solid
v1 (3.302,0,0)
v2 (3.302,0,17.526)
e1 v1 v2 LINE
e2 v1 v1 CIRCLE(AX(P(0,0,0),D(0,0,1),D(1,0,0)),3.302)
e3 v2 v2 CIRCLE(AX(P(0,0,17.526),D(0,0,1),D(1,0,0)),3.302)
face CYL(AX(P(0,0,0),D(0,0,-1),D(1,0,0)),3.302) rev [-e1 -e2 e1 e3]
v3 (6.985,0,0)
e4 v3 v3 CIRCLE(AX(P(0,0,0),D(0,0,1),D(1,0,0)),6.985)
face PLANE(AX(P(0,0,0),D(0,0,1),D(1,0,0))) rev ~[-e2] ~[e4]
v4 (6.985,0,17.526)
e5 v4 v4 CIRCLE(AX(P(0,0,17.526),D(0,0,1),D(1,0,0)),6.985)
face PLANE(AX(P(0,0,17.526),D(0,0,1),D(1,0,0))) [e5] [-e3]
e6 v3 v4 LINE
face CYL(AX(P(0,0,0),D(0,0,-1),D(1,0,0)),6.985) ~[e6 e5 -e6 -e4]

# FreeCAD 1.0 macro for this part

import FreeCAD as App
import Part
import Sketcher
from FreeCAD import Vector
Q = App.Units.Quantity

doc = App.newDocument("Part")
body = doc.addObject("PartDesign::Body", "Body")

sketch1 = body.newObject("Sketcher::SketchObject", "Sketch")
sketch1.AttachmentSupport = (doc.getObject("XY_Plane"), [""])
sketch1.MapMode = "FlatFace"
sketch1.addGeometry([
    Part.Circle(Vector(0, 0, 0), Vector(0, 0, 1), 6.985),
    Part.Circle(Vector(0, 0, 0), Vector(0, 0, 1), 3.302),
], False)
sketch1.addConstraint([
    Sketcher.Constraint("Coincident", 0, 3, -1, 1),
    Sketcher.Constraint("Coincident", 1, 3, -1, 1),
    Sketcher.Constraint("Diameter", 0, Q("0.55 in")),
    Sketcher.Constraint("Diameter", 1, Q("0.26 in")),
])
pad1 = body.newObject("PartDesign::Pad", "Pad")
pad1.Profile = sketch1
pad1.Length = Q("0.69 in")

doc.recompute()
